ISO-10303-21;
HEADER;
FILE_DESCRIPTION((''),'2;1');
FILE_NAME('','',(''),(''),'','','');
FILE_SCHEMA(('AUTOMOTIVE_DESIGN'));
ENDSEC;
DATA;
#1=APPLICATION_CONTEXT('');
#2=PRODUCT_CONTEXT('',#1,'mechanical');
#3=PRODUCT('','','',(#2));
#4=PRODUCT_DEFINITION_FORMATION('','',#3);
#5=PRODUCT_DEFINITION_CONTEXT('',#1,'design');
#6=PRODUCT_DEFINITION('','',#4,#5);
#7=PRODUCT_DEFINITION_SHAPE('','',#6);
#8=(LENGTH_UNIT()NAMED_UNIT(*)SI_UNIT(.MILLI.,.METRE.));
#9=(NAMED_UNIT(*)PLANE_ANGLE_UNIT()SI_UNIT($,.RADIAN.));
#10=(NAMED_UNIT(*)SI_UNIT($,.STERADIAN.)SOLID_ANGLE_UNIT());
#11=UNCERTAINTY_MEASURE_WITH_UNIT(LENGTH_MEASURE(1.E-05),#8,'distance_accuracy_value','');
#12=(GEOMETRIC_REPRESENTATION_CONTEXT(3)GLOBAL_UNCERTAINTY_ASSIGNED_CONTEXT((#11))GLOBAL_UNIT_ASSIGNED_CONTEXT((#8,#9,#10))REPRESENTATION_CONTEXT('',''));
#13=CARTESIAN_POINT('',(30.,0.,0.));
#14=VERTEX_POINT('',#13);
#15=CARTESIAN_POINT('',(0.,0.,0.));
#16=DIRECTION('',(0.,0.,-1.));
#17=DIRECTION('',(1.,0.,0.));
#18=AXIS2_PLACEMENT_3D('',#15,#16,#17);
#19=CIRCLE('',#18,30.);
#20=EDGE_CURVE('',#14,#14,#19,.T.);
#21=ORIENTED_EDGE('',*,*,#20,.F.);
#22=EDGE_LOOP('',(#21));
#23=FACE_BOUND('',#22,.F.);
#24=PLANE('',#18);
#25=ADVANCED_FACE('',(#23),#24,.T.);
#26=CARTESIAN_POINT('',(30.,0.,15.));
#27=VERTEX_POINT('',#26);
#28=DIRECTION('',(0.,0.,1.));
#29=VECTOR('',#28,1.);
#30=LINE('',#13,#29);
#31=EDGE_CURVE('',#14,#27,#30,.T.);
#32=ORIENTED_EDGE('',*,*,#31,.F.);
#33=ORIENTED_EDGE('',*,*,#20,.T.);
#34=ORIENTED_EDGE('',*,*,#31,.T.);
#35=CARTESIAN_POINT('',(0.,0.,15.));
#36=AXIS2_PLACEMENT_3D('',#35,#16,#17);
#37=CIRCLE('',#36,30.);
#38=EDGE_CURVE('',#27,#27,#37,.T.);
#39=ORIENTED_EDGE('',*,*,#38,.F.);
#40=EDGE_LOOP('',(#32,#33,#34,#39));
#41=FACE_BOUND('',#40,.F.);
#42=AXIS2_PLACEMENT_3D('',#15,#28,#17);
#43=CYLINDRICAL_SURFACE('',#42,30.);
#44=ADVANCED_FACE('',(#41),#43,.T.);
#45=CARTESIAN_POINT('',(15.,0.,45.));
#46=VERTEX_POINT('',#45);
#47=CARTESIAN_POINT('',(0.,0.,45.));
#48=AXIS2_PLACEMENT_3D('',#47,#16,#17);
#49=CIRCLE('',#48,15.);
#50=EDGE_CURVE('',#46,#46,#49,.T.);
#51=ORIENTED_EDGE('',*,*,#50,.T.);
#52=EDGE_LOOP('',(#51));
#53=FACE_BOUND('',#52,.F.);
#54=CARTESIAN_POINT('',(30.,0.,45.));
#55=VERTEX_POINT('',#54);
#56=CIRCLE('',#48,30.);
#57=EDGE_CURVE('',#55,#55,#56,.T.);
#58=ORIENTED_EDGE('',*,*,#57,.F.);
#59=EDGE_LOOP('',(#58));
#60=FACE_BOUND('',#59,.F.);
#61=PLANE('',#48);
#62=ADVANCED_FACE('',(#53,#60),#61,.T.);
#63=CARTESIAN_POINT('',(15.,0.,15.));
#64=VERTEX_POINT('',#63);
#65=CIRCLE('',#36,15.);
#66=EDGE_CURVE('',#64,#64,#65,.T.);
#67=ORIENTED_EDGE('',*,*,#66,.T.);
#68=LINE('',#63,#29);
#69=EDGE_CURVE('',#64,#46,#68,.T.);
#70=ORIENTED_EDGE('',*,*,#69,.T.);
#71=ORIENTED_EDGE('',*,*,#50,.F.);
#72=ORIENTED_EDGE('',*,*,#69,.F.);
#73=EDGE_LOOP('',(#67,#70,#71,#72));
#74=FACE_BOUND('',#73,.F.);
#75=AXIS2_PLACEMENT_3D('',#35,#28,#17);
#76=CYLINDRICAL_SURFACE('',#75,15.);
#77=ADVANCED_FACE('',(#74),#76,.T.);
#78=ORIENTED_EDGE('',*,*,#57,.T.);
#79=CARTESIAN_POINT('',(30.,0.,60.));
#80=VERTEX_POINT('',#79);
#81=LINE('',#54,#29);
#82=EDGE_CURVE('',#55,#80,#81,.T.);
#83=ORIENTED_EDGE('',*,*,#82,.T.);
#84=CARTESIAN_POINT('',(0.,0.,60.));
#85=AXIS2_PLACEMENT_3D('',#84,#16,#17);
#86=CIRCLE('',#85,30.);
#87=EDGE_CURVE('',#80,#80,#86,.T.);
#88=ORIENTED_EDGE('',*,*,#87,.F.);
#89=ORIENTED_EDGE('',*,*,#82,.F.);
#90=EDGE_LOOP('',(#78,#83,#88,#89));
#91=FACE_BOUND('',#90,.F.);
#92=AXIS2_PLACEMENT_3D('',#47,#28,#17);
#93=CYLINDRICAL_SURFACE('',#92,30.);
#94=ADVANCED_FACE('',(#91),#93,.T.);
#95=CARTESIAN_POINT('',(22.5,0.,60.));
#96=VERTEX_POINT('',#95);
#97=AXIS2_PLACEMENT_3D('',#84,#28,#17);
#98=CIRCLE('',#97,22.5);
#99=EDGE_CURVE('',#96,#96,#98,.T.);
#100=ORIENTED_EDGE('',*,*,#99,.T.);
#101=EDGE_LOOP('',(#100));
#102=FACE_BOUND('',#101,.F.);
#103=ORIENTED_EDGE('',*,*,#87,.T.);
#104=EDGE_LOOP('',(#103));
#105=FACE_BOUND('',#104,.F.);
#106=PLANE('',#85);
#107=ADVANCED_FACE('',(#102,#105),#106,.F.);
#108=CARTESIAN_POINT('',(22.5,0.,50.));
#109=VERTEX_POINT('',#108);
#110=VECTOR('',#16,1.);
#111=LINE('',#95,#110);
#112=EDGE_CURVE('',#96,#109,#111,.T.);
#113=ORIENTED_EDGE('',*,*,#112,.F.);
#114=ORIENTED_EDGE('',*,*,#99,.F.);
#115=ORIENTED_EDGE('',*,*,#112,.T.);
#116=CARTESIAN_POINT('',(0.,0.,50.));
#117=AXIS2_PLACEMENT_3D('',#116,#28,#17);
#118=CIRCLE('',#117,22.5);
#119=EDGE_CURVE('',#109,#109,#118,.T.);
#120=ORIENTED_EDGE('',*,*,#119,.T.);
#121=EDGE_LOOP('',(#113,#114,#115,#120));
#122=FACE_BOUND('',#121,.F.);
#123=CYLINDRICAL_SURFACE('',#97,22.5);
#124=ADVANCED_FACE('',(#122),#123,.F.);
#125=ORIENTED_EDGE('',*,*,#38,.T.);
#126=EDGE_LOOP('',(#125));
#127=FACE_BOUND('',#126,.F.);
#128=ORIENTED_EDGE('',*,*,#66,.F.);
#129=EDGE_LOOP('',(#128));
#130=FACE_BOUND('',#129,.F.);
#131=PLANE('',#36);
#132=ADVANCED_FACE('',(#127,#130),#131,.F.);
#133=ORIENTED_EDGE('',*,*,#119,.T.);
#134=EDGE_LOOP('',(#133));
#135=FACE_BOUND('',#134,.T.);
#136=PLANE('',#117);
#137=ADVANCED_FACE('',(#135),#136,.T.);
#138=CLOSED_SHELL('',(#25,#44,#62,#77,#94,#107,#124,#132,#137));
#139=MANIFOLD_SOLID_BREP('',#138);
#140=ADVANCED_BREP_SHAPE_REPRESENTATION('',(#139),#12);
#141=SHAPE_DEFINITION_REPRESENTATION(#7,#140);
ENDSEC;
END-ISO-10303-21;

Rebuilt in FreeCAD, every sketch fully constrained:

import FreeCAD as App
import Part
import Sketcher
Q = App.Units.Quantity

doc = App.newDocument("Part")
params = doc.addObject("Spreadsheet::Sheet", "Params")
for row, (alias, value) in enumerate([
    ("sketch1_width", "30 mm"),
    ("sketch1_width2", "15 mm"),
    ("revolution_angle", "360 deg"),
    ("sketch2_diameter", "45 mm"),
    ("pocket1_length", "10 mm"),
], start=1):
    params.set(f"A{row}", alias)
    params.set(f"B{row}", "=" + value)
    params.setAlias(f"B{row}", alias)

body = doc.addObject("PartDesign::Body", "Body")

sketch1 = body.newObject("Sketcher::SketchObject", "Sketch")
sketch1.AttachmentSupport = (doc.getObject("XZ_Plane"), [""])
sketch1.MapMode = "FlatFace"
sketch1.addGeometry(Part.LineSegment(App.Vector(0, 60, 0), App.Vector(0, 0, 0)), False)
sketch1.addGeometry(Part.LineSegment(App.Vector(0, 0, 0), App.Vector(30, 0, 0)), False)
sketch1.addGeometry(Part.LineSegment(App.Vector(30, 0, 0), App.Vector(30, 15, 0)), False)
sketch1.addGeometry(Part.LineSegment(App.Vector(30, 15, 0), App.Vector(15, 15, 0)), False)
sketch1.addGeometry(Part.LineSegment(App.Vector(15, 15, 0), App.Vector(15, 45, 0)), False)
sketch1.addGeometry(Part.LineSegment(App.Vector(15, 45, 0), App.Vector(30, 45, 0)), False)
sketch1.addGeometry(Part.LineSegment(App.Vector(30, 45, 0), App.Vector(30, 60, 0)), False)
sketch1.addGeometry(Part.LineSegment(App.Vector(30, 60, 0), App.Vector(0, 60, 0)), False)
sketch1.addConstraint(Sketcher.Constraint("Coincident", 0, 2, 1, 1))
sketch1.addConstraint(Sketcher.Constraint("Coincident", 1, 2, 2, 1))
sketch1.addConstraint(Sketcher.Constraint("Coincident", 2, 2, 3, 1))
sketch1.addConstraint(Sketcher.Constraint("Coincident", 3, 2, 4, 1))
sketch1.addConstraint(Sketcher.Constraint("Coincident", 4, 2, 5, 1))
sketch1.addConstraint(Sketcher.Constraint("Coincident", 5, 2, 6, 1))
sketch1.addConstraint(Sketcher.Constraint("Coincident", 6, 2, 7, 1))
sketch1.addConstraint(Sketcher.Constraint("Coincident", 7, 2, 0, 1))
sketch1.addConstraint(Sketcher.Constraint("Vertical", 0))
sketch1.addConstraint(Sketcher.Constraint("Horizontal", 1))
sketch1.addConstraint(Sketcher.Constraint("Vertical", 2))
sketch1.addConstraint(Sketcher.Constraint("Horizontal", 3))
sketch1.addConstraint(Sketcher.Constraint("Vertical", 4))
sketch1.addConstraint(Sketcher.Constraint("Horizontal", 5))
sketch1.addConstraint(Sketcher.Constraint("Vertical", 6))
sketch1.addConstraint(Sketcher.Constraint("Horizontal", 7))
sketch1.addConstraint(Sketcher.Constraint("Coincident", 0, 2, -1, 1))
sketch1.addConstraint(Sketcher.Constraint("Vertical", 2, 2, 5, 2))
sketch1.addConstraint(Sketcher.Constraint("Equal", 5, 2))
sketch1.addConstraint(Sketcher.Constraint("Equal", 7, 4))
sketch1.addConstraint(Sketcher.Constraint("Equal", 2, 6))
sketch1.addConstraint(Sketcher.Constraint("DistanceX", 1, 1, 1, 2, Q("30 mm")))
sketch1.addConstraint(Sketcher.Constraint("DistanceX", 3, 2, 3, 1, Q("15 mm")))
sketch1.setExpression("Constraints[21]", "Params.sketch1_width")
sketch1.setExpression("Constraints[22]", "Params.sketch1_width2")
revolution = body.newObject("PartDesign::Revolution", "Revolution")
revolution.Profile = sketch1
revolution.ReferenceAxis = (sketch1, ["V_Axis"])
revolution.setExpression("Angle", "Params.revolution_angle")

sketch2 = body.newObject("Sketcher::SketchObject", "Sketch001")
sketch2.AttachmentSupport = (doc.getObject("XY_Plane"), [""])
sketch2.MapMode = "FlatFace"
sketch2.AttachmentOffset = App.Placement(App.Vector(0, 0, 60), App.Rotation())
sketch2.addGeometry(Part.Circle(App.Vector(0, 0, 0), App.Vector(0, 0, 1), 22.5), False)
sketch2.addConstraint(Sketcher.Constraint("Coincident", 0, 3, -1, 1))
sketch2.addConstraint(Sketcher.Constraint("Diameter", 0, Q("45 mm")))
sketch2.setExpression("Constraints[1]", "Params.sketch2_diameter")
pocket1 = body.newObject("PartDesign::Pocket", "Pocket")
pocket1.Profile = sketch2
pocket1.setExpression("Length", "Params.pocket1_length")

doc.recompute()
